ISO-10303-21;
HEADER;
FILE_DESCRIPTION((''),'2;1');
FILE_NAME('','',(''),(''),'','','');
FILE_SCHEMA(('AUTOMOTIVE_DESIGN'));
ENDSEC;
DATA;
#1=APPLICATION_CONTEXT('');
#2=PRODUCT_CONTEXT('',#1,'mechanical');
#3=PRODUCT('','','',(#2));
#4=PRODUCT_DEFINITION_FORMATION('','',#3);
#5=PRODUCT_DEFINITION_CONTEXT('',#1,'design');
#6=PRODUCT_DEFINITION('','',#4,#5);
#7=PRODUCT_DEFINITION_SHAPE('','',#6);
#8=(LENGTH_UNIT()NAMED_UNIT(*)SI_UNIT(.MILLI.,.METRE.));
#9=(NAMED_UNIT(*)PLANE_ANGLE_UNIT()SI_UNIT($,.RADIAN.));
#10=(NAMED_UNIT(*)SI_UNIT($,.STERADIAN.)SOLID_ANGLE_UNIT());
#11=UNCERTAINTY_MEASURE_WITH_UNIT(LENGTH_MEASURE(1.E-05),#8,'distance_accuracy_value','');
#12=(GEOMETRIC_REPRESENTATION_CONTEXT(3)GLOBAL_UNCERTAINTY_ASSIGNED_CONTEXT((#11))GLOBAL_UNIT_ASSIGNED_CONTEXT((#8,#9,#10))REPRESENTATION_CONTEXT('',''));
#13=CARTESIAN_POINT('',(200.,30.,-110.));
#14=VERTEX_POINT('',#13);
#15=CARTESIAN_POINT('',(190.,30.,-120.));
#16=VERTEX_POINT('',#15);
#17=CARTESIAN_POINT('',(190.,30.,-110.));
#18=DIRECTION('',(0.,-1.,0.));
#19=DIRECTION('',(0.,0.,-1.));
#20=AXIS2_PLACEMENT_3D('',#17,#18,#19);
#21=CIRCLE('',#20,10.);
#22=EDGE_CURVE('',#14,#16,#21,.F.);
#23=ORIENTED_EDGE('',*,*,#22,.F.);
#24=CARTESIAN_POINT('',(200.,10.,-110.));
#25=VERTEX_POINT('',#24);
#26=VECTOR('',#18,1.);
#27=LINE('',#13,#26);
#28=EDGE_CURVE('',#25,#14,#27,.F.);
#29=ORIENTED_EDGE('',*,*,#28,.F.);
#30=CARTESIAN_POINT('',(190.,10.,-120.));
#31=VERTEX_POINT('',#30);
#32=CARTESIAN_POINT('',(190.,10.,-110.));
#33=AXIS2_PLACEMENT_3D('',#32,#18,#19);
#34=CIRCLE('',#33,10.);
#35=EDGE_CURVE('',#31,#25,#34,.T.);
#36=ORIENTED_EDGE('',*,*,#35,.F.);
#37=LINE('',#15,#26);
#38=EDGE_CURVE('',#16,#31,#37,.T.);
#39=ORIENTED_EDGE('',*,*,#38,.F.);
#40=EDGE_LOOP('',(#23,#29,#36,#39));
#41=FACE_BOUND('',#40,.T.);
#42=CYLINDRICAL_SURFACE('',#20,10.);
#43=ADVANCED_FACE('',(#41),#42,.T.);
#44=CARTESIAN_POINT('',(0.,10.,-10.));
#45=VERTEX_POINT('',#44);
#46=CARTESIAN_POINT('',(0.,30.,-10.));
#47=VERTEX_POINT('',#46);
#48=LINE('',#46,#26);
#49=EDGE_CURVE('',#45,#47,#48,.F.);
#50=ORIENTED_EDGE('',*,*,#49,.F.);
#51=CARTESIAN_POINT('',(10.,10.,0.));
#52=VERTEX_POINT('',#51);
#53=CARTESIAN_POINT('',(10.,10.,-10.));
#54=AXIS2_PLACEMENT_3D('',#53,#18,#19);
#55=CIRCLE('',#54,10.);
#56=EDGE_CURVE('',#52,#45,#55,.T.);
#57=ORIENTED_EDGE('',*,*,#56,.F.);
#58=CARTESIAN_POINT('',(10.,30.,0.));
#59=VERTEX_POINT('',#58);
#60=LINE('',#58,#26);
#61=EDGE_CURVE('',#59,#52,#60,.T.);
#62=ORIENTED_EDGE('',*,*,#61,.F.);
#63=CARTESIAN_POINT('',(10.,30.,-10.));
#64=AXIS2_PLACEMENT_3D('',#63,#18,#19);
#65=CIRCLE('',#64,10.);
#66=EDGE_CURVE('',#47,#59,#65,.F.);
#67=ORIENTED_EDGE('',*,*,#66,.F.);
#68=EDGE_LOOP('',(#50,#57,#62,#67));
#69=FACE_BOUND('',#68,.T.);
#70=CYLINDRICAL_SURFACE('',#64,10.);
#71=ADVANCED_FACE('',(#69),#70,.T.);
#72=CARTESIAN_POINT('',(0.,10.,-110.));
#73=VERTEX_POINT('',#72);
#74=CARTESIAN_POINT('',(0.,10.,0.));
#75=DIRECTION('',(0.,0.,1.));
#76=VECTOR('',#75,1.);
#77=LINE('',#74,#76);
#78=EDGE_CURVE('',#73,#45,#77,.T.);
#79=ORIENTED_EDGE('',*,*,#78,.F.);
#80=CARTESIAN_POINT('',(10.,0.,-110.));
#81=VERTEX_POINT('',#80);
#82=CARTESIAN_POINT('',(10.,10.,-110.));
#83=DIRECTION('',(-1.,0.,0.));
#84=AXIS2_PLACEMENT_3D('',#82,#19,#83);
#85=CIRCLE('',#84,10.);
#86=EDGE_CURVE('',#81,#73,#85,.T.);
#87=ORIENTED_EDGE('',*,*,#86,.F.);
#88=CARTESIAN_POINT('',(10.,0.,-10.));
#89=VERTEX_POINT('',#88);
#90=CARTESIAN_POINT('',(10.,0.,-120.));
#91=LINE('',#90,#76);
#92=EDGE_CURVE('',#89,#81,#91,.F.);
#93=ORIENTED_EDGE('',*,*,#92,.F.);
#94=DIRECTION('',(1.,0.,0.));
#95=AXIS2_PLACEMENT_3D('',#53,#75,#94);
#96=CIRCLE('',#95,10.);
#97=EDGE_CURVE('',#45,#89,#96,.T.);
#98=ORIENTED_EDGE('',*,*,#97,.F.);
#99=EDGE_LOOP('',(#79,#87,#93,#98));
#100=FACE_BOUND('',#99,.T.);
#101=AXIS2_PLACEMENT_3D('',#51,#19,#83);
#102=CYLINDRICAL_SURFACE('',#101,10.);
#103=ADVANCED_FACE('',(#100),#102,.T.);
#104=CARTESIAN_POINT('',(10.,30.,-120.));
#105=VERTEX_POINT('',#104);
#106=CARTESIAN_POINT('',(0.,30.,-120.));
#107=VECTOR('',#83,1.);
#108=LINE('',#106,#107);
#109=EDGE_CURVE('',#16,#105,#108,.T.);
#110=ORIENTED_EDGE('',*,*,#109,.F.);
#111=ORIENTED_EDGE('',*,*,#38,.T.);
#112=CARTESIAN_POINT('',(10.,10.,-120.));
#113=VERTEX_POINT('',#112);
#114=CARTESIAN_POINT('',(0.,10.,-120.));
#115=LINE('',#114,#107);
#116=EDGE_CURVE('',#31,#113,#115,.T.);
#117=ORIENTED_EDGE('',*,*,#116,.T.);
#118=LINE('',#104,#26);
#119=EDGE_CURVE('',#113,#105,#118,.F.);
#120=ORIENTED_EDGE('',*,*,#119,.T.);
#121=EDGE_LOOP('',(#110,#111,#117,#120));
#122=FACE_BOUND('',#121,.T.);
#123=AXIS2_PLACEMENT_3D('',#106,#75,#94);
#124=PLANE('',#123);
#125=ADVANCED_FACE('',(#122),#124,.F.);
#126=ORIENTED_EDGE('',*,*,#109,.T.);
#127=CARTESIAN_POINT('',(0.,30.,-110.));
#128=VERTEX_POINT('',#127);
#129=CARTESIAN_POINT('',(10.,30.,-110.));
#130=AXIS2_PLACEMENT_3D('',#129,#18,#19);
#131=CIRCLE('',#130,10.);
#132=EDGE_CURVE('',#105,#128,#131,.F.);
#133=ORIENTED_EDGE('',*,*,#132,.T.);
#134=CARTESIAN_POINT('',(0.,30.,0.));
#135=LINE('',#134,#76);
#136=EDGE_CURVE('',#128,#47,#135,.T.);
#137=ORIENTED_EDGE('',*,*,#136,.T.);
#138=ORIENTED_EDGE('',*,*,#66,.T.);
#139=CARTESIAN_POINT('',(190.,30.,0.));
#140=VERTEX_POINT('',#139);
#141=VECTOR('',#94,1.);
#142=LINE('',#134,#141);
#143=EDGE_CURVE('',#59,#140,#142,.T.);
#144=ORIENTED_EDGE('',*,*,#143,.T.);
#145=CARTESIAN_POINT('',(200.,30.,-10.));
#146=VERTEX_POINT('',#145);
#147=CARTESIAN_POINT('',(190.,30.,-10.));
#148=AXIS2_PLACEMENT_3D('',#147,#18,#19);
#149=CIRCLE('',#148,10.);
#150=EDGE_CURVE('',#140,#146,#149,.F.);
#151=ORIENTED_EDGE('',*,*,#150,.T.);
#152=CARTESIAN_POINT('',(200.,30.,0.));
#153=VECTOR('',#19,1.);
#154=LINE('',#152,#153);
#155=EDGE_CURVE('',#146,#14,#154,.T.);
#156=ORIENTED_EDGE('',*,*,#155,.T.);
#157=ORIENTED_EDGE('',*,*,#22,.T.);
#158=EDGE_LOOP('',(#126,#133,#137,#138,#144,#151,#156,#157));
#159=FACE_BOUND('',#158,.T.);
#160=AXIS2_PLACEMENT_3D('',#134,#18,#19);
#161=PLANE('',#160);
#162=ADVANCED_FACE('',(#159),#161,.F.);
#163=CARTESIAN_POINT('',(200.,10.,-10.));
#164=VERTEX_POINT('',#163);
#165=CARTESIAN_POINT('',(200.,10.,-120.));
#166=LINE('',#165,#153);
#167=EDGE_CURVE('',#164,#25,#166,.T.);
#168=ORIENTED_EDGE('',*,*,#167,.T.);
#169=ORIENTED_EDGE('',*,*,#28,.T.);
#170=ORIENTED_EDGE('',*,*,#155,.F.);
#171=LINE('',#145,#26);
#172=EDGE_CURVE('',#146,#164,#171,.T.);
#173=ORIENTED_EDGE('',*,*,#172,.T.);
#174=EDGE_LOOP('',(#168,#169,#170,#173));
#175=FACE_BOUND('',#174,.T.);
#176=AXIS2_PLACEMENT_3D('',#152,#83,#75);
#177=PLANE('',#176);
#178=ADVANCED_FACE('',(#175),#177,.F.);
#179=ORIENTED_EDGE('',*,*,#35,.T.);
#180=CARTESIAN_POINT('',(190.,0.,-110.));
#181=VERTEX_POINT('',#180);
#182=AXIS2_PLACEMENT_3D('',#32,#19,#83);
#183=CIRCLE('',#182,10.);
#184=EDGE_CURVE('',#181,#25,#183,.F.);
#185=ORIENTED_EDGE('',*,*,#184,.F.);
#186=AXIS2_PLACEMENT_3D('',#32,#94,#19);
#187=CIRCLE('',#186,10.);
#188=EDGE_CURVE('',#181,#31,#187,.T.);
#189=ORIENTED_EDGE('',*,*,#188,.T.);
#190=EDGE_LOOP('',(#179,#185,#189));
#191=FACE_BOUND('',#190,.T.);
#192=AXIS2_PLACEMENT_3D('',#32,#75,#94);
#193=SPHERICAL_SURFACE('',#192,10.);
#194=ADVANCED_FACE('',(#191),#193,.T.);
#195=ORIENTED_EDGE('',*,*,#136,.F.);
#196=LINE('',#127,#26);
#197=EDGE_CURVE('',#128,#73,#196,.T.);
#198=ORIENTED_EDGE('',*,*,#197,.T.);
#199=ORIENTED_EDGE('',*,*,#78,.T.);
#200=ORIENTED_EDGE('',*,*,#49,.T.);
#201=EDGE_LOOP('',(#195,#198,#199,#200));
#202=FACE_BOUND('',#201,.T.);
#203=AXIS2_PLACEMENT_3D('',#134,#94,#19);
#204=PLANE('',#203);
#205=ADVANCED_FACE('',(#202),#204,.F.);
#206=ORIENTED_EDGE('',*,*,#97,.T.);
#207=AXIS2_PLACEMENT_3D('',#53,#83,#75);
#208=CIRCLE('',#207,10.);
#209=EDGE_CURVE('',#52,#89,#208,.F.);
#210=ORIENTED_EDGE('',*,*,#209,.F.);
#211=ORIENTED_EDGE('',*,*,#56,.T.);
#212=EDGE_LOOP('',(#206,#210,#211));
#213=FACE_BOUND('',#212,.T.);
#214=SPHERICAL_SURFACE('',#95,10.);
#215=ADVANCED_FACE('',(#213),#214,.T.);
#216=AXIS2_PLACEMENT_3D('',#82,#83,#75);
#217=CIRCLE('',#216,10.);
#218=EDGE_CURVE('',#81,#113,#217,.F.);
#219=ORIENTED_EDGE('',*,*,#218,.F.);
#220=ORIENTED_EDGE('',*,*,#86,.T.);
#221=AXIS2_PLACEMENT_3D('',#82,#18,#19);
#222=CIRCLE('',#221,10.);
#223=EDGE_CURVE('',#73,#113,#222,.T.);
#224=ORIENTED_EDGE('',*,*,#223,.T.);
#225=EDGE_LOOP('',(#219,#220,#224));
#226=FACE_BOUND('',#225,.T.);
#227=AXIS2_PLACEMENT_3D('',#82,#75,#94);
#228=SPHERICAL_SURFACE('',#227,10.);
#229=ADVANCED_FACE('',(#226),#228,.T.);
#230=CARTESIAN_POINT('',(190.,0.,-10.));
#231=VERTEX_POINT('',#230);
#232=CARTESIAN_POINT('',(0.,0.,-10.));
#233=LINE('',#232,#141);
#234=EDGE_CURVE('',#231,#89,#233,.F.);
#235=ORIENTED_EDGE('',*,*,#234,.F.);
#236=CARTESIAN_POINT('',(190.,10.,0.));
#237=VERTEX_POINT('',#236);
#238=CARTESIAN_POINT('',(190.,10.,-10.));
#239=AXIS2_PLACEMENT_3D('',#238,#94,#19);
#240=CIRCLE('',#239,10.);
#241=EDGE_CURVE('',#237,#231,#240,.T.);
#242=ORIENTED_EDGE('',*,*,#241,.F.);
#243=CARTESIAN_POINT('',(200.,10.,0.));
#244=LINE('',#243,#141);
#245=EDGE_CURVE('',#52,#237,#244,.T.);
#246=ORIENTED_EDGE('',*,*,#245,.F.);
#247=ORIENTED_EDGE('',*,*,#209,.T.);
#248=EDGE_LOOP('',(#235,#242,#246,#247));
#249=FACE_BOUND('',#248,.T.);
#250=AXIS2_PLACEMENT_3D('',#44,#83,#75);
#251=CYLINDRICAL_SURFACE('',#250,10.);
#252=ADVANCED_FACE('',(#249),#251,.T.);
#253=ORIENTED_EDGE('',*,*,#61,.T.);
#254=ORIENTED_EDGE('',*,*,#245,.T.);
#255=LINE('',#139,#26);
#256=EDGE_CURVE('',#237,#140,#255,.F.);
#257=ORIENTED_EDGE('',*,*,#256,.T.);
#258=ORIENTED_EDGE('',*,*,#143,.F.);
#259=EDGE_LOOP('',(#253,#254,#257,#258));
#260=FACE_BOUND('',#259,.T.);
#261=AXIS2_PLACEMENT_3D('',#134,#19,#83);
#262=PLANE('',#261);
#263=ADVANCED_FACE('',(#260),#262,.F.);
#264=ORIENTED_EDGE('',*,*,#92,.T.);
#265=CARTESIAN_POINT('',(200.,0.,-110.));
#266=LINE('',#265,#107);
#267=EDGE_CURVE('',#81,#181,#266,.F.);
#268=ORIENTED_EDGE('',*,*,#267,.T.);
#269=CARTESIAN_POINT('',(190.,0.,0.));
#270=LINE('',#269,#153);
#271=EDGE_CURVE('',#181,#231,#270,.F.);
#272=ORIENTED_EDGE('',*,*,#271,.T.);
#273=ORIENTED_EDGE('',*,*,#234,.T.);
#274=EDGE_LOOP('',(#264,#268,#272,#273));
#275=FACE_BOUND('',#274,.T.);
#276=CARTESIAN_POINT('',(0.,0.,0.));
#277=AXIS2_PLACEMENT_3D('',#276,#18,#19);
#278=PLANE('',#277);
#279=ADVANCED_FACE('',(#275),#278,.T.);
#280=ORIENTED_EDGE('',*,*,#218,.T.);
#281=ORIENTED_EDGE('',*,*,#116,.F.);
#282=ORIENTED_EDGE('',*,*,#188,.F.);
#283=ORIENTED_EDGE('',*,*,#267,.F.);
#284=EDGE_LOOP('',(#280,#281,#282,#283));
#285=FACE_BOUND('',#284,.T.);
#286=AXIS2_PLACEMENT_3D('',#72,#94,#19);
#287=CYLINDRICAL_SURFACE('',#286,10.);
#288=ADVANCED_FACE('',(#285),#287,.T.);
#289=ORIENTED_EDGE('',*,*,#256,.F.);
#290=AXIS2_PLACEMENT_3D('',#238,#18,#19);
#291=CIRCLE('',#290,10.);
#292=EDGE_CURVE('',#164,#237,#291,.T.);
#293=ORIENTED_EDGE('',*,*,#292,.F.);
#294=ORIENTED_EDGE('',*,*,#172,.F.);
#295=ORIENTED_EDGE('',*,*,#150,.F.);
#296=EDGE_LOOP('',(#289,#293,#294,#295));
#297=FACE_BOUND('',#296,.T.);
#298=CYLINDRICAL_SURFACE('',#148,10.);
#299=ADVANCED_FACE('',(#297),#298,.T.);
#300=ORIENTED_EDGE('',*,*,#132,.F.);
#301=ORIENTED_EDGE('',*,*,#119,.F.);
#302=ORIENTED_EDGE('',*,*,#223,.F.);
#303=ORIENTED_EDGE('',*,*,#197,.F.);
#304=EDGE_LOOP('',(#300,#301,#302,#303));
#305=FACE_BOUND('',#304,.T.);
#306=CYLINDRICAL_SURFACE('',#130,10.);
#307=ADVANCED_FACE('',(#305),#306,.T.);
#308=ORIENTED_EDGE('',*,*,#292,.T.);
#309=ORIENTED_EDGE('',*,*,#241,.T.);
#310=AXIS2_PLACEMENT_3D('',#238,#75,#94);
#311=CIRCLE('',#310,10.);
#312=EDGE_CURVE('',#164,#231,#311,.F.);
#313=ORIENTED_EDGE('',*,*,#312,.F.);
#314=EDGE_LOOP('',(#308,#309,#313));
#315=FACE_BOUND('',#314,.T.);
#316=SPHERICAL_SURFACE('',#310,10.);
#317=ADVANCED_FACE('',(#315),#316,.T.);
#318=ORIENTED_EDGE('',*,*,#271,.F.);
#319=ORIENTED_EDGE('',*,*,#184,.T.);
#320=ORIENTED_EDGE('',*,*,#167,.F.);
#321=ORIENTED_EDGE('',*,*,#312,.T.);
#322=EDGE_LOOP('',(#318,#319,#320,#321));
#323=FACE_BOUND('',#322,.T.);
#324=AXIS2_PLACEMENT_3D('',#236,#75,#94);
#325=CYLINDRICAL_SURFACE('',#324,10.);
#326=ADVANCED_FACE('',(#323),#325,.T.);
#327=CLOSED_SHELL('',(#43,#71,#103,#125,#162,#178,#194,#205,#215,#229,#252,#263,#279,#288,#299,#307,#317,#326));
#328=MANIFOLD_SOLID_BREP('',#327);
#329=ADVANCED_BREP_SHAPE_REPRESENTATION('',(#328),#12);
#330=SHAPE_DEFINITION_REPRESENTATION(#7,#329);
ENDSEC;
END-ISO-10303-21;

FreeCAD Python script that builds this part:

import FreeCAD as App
import Part
import Sketcher

V = App.Vector


def edges_at(feature, points):
    """Names of the edges that pass closest to the given points."""
    edges = feature.Shape.Edges
    near = lambda p: min(range(len(edges)), key=lambda i: edges[i].distToShape(Part.Vertex(*p))[0])
    return sorted({f"Edge{near(p) + 1}" for p in points})


def add_polygon(sketch, points):
    """Adds a closed chain of lines whose ends are joined by coincident constraints."""
    first, n = sketch.GeometryCount, len(points)
    for a, b in zip(points, points[1:] + points[:1]):
        sketch.addGeometry(Part.LineSegment(App.Vector(*a, 0), App.Vector(*b, 0)), False)
    for i in range(n):
        sketch.addConstraint(Sketcher.Constraint("Coincident", first + i, 2, first + (i + 1) % n, 1))

doc = App.newDocument("Part")
body = doc.addObject("PartDesign::Body", "Body")

# Sketch on XZ plane
sketch1 = doc.addObject("Sketcher::SketchObject", "Sketch")
body.addObject(sketch1)
sketch1.AttachmentSupport = (doc.XZ_Plane, [""])
sketch1.MapMode = "FlatFace"
add_polygon(sketch1, [(0, -120), (0, 0), (200, 0), (200, -120)])  # lines 0-3
sketch1.addConstraint([
    Sketcher.Constraint("Vertical", 0),
    Sketcher.Constraint("Horizontal", 1),
    Sketcher.Constraint("Vertical", 2),
    Sketcher.Constraint("Horizontal", 3),
    Sketcher.Constraint("Coincident", 0, 2, -1, 1),
    Sketcher.Constraint("DistanceX", 1, 1, 1, 2, 200.0),
    Sketcher.Constraint("DistanceY", 0, 1, 0, 2, 120.0),
])
pad1 = doc.addObject("PartDesign::Pad", "Pad")
body.addObject(pad1)
pad1.Profile = sketch1
pad1.Length = 30
pad1.Reversed = True
doc.recompute()

fillet = doc.addObject("PartDesign::Fillet", "Fillet")
body.addObject(fillet)
fillet.Base = (pad1, edges_at(pad1, [
    (100, 0, -120),
    (200, 0, -60),
    (100, 0, 0),
    (0, 0, -60),
    (0, 15, -120),
    (200, 15, -120),
    (200, 15, 0),
    (0, 15, 0),
]))
fillet.Radius = 10

doc.recompute()
